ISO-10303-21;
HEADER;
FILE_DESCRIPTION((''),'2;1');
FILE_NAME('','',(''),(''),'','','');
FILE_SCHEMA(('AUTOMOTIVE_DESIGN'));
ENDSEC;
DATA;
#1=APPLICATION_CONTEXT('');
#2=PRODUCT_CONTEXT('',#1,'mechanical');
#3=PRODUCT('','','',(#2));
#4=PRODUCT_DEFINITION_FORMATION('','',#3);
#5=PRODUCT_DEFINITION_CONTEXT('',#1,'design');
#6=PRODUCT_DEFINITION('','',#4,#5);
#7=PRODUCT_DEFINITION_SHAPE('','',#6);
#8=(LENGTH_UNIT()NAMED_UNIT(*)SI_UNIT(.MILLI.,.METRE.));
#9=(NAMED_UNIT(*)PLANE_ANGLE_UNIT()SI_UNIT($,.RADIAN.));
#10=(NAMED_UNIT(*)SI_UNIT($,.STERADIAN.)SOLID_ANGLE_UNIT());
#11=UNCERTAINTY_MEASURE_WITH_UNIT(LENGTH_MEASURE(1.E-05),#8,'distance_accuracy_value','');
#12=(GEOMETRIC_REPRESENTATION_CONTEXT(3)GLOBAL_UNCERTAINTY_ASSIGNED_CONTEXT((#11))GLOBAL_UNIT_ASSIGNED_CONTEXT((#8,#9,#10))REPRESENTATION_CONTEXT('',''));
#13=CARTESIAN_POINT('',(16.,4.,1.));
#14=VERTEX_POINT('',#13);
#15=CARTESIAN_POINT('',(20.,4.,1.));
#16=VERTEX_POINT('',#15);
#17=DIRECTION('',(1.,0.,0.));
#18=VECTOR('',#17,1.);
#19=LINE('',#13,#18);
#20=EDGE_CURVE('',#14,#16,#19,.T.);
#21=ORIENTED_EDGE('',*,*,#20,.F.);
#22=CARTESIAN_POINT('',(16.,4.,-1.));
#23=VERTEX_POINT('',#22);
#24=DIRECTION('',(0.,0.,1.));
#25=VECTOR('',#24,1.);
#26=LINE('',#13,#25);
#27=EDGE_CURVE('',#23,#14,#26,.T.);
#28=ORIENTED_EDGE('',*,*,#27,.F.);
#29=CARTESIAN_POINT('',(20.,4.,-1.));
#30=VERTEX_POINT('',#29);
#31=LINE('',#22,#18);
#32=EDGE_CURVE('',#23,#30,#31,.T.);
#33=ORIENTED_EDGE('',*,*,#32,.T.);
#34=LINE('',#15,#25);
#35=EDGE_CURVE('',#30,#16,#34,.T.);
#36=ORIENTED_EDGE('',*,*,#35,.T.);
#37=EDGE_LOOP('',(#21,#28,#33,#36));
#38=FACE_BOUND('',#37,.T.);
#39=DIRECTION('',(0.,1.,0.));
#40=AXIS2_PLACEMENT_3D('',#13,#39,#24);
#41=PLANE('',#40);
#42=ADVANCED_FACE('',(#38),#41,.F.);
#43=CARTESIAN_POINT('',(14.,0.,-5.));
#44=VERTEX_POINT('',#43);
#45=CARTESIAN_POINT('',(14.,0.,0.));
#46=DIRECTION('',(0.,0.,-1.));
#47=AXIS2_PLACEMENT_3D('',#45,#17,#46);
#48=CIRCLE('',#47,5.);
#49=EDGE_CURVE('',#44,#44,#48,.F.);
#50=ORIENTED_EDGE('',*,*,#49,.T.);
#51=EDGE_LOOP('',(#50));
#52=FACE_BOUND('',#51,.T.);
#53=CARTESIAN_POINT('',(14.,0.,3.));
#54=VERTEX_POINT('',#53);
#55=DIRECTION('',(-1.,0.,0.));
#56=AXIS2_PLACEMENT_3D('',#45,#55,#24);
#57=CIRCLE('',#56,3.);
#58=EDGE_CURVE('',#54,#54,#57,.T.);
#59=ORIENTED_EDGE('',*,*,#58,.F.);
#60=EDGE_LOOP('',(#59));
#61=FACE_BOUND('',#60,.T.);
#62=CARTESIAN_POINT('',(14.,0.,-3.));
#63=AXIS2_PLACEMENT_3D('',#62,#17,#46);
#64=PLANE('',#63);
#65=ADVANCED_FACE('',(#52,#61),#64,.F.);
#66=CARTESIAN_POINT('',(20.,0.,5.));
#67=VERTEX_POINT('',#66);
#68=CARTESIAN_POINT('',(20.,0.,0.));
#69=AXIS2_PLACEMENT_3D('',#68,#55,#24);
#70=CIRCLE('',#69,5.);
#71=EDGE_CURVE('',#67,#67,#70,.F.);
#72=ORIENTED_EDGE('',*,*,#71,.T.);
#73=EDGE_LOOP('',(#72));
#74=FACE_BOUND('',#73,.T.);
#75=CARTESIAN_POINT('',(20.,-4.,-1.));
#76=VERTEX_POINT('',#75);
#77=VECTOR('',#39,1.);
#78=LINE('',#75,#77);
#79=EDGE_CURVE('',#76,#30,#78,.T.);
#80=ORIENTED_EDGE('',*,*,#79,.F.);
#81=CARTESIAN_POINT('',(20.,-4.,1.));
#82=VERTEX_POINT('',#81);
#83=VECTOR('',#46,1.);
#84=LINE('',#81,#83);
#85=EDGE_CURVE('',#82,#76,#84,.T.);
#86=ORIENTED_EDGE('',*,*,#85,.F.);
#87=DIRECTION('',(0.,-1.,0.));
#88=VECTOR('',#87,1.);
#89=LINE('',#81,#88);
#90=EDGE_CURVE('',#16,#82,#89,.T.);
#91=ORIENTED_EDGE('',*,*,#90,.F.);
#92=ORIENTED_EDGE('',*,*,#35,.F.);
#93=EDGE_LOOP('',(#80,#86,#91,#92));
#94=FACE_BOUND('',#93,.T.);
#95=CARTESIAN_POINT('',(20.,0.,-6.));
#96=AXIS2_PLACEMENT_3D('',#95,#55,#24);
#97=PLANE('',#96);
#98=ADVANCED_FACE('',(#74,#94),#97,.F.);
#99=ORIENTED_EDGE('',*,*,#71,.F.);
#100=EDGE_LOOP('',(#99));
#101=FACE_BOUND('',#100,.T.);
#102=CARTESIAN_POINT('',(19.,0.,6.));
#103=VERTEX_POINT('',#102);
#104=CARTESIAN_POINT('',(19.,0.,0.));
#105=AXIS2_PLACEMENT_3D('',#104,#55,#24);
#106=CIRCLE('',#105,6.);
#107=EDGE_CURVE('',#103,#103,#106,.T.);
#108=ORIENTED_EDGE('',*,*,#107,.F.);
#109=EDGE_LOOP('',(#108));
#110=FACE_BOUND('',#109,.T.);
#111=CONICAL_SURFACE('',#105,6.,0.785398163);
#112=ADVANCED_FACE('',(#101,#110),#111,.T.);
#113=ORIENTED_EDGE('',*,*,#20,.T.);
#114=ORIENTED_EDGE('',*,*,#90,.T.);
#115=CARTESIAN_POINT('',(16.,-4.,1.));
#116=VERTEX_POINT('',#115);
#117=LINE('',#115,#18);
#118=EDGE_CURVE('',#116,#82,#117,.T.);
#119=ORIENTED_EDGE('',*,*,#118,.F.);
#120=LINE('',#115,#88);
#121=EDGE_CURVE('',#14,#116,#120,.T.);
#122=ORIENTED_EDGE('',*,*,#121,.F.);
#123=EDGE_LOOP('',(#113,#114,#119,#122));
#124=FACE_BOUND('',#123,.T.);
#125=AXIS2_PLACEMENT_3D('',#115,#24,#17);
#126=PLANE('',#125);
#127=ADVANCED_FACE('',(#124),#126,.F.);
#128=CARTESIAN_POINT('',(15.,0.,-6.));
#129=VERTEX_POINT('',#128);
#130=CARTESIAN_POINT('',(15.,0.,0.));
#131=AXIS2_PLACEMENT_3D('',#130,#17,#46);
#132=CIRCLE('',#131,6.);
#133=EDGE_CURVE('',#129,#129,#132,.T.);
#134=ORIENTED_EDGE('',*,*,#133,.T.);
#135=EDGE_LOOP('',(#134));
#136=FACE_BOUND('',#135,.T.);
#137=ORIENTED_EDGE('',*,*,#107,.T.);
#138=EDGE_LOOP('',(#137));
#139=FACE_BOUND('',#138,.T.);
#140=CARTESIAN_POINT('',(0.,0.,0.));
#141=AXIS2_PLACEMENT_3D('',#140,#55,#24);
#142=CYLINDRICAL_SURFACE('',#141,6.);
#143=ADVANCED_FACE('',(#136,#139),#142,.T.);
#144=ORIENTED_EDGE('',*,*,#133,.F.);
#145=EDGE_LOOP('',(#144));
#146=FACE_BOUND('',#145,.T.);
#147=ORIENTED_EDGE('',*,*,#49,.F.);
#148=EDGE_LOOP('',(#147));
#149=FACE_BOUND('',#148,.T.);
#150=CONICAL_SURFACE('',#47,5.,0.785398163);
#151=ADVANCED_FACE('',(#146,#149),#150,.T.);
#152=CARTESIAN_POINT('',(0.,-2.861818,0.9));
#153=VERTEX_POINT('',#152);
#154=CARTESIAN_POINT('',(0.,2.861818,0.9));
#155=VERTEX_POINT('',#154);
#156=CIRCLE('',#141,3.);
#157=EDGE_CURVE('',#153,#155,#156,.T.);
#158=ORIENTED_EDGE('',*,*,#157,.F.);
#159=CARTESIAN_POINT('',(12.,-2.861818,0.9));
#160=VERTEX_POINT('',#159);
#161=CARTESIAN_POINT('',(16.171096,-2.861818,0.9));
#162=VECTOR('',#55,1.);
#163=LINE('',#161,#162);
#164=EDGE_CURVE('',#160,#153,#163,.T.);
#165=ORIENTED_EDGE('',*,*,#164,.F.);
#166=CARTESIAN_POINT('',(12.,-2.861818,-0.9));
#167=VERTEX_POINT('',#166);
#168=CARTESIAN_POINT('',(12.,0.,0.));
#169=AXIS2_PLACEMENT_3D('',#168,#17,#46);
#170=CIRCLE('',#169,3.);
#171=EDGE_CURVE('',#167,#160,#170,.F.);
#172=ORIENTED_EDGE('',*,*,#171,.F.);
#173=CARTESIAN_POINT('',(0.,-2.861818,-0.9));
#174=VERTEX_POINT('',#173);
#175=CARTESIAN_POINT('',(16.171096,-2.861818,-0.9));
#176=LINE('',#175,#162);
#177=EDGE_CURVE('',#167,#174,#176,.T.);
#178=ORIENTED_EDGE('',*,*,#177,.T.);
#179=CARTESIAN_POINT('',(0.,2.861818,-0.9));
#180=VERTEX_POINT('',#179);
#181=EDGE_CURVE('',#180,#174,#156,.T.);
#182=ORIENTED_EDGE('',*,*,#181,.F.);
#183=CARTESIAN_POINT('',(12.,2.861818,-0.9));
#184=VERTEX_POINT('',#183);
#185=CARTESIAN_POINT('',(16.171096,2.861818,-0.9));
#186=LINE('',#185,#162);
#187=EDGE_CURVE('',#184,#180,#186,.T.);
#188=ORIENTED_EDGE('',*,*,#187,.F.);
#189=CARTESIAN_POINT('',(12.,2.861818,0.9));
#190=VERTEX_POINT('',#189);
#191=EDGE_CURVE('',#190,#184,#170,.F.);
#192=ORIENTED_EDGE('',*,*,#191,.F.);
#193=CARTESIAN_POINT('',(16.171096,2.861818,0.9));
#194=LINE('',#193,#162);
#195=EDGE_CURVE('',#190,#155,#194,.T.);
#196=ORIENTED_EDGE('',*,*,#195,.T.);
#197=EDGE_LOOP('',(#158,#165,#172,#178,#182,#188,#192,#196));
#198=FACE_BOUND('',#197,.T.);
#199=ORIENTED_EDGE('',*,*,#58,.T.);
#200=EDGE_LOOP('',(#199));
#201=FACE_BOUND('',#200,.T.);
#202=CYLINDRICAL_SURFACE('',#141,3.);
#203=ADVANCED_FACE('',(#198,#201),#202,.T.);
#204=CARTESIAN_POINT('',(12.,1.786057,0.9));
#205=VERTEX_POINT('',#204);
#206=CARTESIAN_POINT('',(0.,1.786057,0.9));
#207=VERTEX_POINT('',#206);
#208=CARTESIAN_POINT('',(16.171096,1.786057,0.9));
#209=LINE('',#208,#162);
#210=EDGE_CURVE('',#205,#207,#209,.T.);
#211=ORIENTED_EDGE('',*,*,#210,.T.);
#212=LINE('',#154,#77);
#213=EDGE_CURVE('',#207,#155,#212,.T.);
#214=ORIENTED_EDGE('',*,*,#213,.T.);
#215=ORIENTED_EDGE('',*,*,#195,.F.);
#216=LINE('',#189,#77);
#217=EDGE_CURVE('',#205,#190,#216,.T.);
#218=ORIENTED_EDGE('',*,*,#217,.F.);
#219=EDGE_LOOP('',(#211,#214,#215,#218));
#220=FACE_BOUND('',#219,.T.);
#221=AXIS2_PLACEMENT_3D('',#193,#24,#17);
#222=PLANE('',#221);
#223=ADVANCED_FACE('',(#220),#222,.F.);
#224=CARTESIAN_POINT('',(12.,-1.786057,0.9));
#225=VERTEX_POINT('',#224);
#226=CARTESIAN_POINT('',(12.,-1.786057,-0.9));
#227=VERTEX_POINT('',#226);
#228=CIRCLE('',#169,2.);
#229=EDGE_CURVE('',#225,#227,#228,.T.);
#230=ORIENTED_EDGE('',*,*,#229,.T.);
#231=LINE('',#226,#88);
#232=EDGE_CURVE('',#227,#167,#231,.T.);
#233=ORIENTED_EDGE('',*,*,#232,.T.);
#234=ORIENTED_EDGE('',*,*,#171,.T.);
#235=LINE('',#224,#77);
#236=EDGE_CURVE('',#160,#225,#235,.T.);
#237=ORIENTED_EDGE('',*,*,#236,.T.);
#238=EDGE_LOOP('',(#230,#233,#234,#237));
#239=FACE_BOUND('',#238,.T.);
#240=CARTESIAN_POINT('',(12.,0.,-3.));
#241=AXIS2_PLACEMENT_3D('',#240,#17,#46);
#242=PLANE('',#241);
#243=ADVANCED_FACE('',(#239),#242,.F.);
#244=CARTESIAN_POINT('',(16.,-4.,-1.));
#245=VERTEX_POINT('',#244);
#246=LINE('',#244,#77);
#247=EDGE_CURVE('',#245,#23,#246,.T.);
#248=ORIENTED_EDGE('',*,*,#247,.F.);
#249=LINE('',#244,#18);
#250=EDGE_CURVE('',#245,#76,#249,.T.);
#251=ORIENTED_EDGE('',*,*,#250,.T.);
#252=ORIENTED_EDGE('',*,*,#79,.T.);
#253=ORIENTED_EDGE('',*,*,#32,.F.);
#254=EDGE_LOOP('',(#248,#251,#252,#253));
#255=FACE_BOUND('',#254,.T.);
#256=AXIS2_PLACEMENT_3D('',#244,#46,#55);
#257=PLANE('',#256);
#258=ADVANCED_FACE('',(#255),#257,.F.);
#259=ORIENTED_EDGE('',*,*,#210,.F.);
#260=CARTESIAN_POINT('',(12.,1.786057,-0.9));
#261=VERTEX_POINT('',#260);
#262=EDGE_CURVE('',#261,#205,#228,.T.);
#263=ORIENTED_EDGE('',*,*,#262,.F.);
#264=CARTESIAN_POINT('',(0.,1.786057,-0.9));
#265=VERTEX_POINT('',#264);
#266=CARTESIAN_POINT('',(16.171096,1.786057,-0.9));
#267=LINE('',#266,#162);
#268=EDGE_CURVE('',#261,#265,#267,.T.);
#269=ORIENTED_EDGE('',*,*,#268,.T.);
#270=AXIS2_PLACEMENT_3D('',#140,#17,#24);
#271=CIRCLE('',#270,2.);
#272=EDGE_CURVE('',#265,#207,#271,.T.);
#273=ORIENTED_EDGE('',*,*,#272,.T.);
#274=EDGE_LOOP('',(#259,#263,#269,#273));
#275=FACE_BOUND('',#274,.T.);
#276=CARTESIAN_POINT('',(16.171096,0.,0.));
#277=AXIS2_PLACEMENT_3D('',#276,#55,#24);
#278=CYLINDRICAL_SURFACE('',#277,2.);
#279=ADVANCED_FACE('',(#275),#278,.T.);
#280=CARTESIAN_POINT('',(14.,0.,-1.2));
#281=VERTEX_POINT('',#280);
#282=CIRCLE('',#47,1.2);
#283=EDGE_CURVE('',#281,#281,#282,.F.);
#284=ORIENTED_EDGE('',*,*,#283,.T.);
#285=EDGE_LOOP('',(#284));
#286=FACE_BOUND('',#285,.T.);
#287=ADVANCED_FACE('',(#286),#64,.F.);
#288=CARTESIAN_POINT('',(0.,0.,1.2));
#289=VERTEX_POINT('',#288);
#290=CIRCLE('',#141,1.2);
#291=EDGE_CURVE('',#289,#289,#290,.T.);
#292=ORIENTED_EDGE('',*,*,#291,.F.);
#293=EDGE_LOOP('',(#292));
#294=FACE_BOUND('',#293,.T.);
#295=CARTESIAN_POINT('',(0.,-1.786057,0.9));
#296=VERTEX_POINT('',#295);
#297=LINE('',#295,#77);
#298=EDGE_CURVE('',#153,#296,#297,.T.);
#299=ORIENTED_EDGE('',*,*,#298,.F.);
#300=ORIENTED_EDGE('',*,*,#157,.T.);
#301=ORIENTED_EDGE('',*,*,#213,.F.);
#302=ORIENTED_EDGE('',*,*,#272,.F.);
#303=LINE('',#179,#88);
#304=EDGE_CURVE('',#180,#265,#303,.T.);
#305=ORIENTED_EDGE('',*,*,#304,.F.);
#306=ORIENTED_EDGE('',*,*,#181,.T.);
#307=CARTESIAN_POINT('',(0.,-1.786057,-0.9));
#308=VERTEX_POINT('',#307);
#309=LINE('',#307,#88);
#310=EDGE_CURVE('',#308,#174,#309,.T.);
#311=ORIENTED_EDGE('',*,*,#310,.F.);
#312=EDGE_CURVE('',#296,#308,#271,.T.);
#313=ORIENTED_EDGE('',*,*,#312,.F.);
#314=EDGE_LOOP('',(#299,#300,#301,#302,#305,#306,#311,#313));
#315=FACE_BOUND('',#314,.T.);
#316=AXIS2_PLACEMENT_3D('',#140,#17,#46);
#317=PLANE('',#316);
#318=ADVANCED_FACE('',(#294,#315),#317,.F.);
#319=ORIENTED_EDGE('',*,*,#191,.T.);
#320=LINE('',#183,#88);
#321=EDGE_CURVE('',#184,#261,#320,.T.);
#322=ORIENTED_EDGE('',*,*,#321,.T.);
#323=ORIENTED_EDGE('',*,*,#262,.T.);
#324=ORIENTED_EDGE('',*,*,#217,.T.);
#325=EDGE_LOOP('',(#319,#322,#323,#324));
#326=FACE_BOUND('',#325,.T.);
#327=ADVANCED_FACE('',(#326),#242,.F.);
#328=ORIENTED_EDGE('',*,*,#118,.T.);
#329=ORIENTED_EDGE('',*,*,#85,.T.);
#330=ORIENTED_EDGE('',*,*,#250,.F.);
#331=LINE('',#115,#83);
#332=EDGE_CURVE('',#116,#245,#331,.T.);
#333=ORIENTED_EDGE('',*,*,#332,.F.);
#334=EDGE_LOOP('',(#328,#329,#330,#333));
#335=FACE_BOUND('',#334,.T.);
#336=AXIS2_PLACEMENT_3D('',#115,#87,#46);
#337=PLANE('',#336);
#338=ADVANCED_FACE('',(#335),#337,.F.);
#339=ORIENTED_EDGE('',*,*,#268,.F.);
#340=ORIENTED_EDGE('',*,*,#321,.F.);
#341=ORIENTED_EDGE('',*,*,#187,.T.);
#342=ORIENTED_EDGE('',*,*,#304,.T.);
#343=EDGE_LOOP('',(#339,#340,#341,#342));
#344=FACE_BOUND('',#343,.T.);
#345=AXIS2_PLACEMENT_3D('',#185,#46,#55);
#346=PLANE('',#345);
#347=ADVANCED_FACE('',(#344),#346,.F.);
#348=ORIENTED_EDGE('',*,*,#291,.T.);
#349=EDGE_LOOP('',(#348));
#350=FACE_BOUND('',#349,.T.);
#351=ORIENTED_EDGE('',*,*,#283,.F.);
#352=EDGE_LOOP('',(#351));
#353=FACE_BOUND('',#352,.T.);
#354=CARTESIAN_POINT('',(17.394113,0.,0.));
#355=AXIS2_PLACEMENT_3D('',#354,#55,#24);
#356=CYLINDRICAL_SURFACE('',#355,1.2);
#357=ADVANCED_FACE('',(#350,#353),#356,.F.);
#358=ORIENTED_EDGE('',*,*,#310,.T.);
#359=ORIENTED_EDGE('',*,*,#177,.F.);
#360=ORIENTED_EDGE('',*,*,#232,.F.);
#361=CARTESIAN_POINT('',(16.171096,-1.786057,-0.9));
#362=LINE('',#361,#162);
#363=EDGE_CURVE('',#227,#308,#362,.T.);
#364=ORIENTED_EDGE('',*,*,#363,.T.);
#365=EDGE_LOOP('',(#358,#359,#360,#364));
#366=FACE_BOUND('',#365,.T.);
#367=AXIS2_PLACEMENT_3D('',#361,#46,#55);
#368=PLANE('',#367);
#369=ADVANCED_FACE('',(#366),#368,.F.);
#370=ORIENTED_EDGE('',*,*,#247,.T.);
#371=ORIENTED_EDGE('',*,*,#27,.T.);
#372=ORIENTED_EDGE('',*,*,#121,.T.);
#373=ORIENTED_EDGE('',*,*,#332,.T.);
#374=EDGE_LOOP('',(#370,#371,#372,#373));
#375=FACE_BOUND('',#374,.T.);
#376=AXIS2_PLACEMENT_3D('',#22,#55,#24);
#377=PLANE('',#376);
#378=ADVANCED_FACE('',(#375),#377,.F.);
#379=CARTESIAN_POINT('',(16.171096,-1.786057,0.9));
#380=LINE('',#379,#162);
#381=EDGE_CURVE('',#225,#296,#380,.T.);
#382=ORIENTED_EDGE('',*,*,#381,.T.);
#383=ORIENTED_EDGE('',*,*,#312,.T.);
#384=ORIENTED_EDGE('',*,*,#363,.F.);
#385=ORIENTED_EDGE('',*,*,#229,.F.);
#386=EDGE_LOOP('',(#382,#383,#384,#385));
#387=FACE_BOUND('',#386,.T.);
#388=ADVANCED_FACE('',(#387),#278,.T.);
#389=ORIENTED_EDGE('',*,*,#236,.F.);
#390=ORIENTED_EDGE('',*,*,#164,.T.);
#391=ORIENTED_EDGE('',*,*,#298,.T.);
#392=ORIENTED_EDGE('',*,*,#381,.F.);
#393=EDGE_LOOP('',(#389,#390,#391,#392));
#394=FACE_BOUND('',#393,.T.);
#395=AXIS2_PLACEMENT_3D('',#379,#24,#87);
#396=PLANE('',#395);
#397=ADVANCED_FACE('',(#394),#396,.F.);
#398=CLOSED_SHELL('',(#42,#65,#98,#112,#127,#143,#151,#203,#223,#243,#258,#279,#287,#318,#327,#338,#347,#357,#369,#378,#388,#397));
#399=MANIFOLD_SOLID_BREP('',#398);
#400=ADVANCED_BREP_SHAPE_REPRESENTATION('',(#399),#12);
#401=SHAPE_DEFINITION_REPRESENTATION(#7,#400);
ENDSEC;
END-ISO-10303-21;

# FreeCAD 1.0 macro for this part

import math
import FreeCAD as App
import Part
import Sketcher


def edges_at(feature, points):
    """Names of the edges that pass closest to the given points."""
    edges = feature.Shape.Edges
    near = lambda p: min(range(len(edges)), key=lambda i: edges[i].distToShape(Part.Vertex(*p))[0])
    return sorted({f"Edge{near(p) + 1}" for p in points})


def add_polygon(sketch, points):
    """Adds a closed chain of lines whose ends are joined by coincident constraints."""
    first, n = sketch.GeometryCount, len(points)
    for a, b in zip(points, points[1:] + points[:1]):
        sketch.addGeometry(Part.LineSegment(App.Vector(*a, 0), App.Vector(*b, 0)), False)
    for i in range(n):
        sketch.addConstraint(Sketcher.Constraint("Coincident", first + i, 2, first + (i + 1) % n, 1))

doc = App.newDocument("Part")
body = doc.addObject("PartDesign::Body", "Body")

# Sketch on XZ plane
sketch1 = doc.addObject("Sketcher::SketchObject", "Sketch")
body.addObject(sketch1)
sketch1.AttachmentSupport = (doc.XZ_Plane, [""])
sketch1.MapMode = "FlatFace"
add_polygon(sketch1, [(0, -3), (0, 0), (20, 0), (20, -6), (14, -6), (14, -3)])  # lines 0-5
sketch1.addConstraint([
    Sketcher.Constraint("Vertical", 0),
    Sketcher.Constraint("Horizontal", 1),
    Sketcher.Constraint("Vertical", 2),
    Sketcher.Constraint("Horizontal", 3),
    Sketcher.Constraint("Vertical", 4),
    Sketcher.Constraint("Horizontal", 5),
    Sketcher.Constraint("Coincident", 0, 2, -1, 1),
    Sketcher.Constraint("Equal", 3, 2),
    Sketcher.Constraint("Equal", 0, 4),
    Sketcher.Constraint("DistanceX", 1, 1, 1, 2, 20.0),
    Sketcher.Constraint("DistanceX", 3, 2, 3, 1, 6.0),
])
revolution = doc.addObject("PartDesign::Revolution", "Revolution")
body.addObject(revolution)
revolution.Profile = sketch1
revolution.ReferenceAxis = (sketch1, ["H_Axis"])
revolution.Angle = 360

# Sketch on YZ plane
sketch2 = doc.addObject("Sketcher::SketchObject", "Sketch001")
body.addObject(sketch2)
sketch2.AttachmentSupport = (doc.YZ_Plane, [""])
sketch2.MapMode = "FlatFace"
sketch2.addGeometry(Part.Circle(App.Vector(0, 0, 0), App.Vector(0, 0, 1), 1.2), False)
sketch2.addConstraint([
    Sketcher.Constraint("Coincident", 0, 3, -1, 1),
    Sketcher.Constraint("Diameter", 0, 2.4),
])
pocket1 = doc.addObject("PartDesign::Pocket", "Pocket")
body.addObject(pocket1)
pocket1.Profile = sketch2
pocket1.Length = 14
pocket1.Reversed = True

# Sketch on YZ plane
sketch3 = doc.addObject("Sketcher::SketchObject", "Sketch002")
body.addObject(sketch3)
sketch3.AttachmentSupport = (doc.YZ_Plane, [""])
sketch3.MapMode = "FlatFace"
sketch3.AttachmentOffset = App.Placement(App.Vector(0, 0, 20), App.Rotation())
add_polygon(sketch3, [(4, 1), (-4, 1), (-4, -1), (4, -1)])  # lines 0-3
sketch3.addConstraint([
    Sketcher.Constraint("Horizontal", 0),
    Sketcher.Constraint("Vertical", 1),
    Sketcher.Constraint("Horizontal", 2),
    Sketcher.Constraint("Vertical", 3),
    Sketcher.Constraint("Symmetric", 0, 2, 2, 2, -1, 1),
    Sketcher.Constraint("DistanceX", 0, 2, 0, 1, 8.0),
    Sketcher.Constraint("DistanceY", 1, 2, 1, 1, 2.0),
])
pocket2 = doc.addObject("PartDesign::Pocket", "Pocket001")
body.addObject(pocket2)
pocket2.Profile = sketch3
pocket2.Length = 4
doc.recompute()

chamfer = doc.addObject("PartDesign::Chamfer", "Chamfer")
body.addObject(chamfer)
chamfer.Base = (pocket2, edges_at(pocket2, [(20, 0, -6), (14, 0, -6)]))
chamfer.Size = 1

# Sketch on YZ plane
sketch4 = doc.addObject("Sketcher::SketchObject", "Sketch003")
body.addObject(sketch4)
sketch4.AttachmentSupport = (doc.YZ_Plane, [""])
sketch4.MapMode = "FlatFace"
sketch4.AttachmentOffset = App.Placement(App.Vector(0, 0, 12), App.Rotation())
sketch4.addGeometry([
    Part.LineSegment(App.Vector(2.861818, -0.9, 0), App.Vector(1.786057, -0.9, 0)),  # 0
    Part.ArcOfCircle(Part.Circle(App.Vector(0, 0, 0), App.Vector(0, 0, 1), 2), math.radians(-26.743684), math.radians(26.743684)),  # 1
    Part.LineSegment(App.Vector(1.786057, 0.9, 0), App.Vector(2.861818, 0.9, 0)),  # 2
    Part.ArcOfCircle(Part.Circle(App.Vector(0, 0, 0), App.Vector(0, 0, 1), 3), math.radians(-17.457603), math.radians(17.457603)),  # 3
    Part.LineSegment(App.Vector(-1.786057, -0.9, 0), App.Vector(-2.861818, -0.9, 0)),  # 4
    Part.ArcOfCircle(Part.Circle(App.Vector(0, 0, 0), App.Vector(0, 0, 1), 3), math.radians(162.542397), math.radians(197.457603)),  # 5
    Part.LineSegment(App.Vector(-2.861818, 0.9, 0), App.Vector(-1.786057, 0.9, 0)),  # 6
    Part.ArcOfCircle(Part.Circle(App.Vector(0, 0, 0), App.Vector(0, 0, 1), 2), math.radians(153.256316), math.radians(206.743684)),  # 7
], False)
sketch4.addConstraint([
    Sketcher.Constraint("Coincident", 0, 2, 1, 1),
    Sketcher.Constraint("Coincident", 1, 2, 2, 1),
    Sketcher.Constraint("Coincident", 2, 2, 3, 2),
    Sketcher.Constraint("Coincident", 3, 1, 0, 1),
    Sketcher.Constraint("Coincident", 4, 2, 5, 2),
    Sketcher.Constraint("Coincident", 5, 1, 6, 1),
    Sketcher.Constraint("Coincident", 6, 2, 7, 1),
    Sketcher.Constraint("Coincident", 7, 2, 4, 1),
    Sketcher.Constraint("Horizontal", 0),
    Sketcher.Constraint("Horizontal", 2),
    Sketcher.Constraint("Horizontal", 4),
    Sketcher.Constraint("Horizontal", 6),
    Sketcher.Constraint("Coincident", 1, 3, -1, 1),
    Sketcher.Constraint("Coincident", 3, 3, -1, 1),
    Sketcher.Constraint("Coincident", 5, 3, -1, 1),
    Sketcher.Constraint("Coincident", 7, 3, -1, 1),
    Sketcher.Constraint("Equal", 3, 5),
    Sketcher.Constraint("Equal", 1, 7),
    Sketcher.Constraint("Horizontal", 3, 1, 4, 2),
    Sketcher.Constraint("Horizontal", 2, 2, 5, 1),
    Sketcher.Constraint("Vertical", 0, 2, 1, 2),
    Sketcher.Constraint("Radius", 1, 2.0),
    Sketcher.Constraint("Radius", 3, 3.0),
    Sketcher.Constraint("DistanceY", 0, 2, -1, 1, 0.9),
])
pocket3 = doc.addObject("PartDesign::Pocket", "Pocket002")
body.addObject(pocket3)
pocket3.Profile = sketch4
pocket3.Length = 12

doc.recompute()
